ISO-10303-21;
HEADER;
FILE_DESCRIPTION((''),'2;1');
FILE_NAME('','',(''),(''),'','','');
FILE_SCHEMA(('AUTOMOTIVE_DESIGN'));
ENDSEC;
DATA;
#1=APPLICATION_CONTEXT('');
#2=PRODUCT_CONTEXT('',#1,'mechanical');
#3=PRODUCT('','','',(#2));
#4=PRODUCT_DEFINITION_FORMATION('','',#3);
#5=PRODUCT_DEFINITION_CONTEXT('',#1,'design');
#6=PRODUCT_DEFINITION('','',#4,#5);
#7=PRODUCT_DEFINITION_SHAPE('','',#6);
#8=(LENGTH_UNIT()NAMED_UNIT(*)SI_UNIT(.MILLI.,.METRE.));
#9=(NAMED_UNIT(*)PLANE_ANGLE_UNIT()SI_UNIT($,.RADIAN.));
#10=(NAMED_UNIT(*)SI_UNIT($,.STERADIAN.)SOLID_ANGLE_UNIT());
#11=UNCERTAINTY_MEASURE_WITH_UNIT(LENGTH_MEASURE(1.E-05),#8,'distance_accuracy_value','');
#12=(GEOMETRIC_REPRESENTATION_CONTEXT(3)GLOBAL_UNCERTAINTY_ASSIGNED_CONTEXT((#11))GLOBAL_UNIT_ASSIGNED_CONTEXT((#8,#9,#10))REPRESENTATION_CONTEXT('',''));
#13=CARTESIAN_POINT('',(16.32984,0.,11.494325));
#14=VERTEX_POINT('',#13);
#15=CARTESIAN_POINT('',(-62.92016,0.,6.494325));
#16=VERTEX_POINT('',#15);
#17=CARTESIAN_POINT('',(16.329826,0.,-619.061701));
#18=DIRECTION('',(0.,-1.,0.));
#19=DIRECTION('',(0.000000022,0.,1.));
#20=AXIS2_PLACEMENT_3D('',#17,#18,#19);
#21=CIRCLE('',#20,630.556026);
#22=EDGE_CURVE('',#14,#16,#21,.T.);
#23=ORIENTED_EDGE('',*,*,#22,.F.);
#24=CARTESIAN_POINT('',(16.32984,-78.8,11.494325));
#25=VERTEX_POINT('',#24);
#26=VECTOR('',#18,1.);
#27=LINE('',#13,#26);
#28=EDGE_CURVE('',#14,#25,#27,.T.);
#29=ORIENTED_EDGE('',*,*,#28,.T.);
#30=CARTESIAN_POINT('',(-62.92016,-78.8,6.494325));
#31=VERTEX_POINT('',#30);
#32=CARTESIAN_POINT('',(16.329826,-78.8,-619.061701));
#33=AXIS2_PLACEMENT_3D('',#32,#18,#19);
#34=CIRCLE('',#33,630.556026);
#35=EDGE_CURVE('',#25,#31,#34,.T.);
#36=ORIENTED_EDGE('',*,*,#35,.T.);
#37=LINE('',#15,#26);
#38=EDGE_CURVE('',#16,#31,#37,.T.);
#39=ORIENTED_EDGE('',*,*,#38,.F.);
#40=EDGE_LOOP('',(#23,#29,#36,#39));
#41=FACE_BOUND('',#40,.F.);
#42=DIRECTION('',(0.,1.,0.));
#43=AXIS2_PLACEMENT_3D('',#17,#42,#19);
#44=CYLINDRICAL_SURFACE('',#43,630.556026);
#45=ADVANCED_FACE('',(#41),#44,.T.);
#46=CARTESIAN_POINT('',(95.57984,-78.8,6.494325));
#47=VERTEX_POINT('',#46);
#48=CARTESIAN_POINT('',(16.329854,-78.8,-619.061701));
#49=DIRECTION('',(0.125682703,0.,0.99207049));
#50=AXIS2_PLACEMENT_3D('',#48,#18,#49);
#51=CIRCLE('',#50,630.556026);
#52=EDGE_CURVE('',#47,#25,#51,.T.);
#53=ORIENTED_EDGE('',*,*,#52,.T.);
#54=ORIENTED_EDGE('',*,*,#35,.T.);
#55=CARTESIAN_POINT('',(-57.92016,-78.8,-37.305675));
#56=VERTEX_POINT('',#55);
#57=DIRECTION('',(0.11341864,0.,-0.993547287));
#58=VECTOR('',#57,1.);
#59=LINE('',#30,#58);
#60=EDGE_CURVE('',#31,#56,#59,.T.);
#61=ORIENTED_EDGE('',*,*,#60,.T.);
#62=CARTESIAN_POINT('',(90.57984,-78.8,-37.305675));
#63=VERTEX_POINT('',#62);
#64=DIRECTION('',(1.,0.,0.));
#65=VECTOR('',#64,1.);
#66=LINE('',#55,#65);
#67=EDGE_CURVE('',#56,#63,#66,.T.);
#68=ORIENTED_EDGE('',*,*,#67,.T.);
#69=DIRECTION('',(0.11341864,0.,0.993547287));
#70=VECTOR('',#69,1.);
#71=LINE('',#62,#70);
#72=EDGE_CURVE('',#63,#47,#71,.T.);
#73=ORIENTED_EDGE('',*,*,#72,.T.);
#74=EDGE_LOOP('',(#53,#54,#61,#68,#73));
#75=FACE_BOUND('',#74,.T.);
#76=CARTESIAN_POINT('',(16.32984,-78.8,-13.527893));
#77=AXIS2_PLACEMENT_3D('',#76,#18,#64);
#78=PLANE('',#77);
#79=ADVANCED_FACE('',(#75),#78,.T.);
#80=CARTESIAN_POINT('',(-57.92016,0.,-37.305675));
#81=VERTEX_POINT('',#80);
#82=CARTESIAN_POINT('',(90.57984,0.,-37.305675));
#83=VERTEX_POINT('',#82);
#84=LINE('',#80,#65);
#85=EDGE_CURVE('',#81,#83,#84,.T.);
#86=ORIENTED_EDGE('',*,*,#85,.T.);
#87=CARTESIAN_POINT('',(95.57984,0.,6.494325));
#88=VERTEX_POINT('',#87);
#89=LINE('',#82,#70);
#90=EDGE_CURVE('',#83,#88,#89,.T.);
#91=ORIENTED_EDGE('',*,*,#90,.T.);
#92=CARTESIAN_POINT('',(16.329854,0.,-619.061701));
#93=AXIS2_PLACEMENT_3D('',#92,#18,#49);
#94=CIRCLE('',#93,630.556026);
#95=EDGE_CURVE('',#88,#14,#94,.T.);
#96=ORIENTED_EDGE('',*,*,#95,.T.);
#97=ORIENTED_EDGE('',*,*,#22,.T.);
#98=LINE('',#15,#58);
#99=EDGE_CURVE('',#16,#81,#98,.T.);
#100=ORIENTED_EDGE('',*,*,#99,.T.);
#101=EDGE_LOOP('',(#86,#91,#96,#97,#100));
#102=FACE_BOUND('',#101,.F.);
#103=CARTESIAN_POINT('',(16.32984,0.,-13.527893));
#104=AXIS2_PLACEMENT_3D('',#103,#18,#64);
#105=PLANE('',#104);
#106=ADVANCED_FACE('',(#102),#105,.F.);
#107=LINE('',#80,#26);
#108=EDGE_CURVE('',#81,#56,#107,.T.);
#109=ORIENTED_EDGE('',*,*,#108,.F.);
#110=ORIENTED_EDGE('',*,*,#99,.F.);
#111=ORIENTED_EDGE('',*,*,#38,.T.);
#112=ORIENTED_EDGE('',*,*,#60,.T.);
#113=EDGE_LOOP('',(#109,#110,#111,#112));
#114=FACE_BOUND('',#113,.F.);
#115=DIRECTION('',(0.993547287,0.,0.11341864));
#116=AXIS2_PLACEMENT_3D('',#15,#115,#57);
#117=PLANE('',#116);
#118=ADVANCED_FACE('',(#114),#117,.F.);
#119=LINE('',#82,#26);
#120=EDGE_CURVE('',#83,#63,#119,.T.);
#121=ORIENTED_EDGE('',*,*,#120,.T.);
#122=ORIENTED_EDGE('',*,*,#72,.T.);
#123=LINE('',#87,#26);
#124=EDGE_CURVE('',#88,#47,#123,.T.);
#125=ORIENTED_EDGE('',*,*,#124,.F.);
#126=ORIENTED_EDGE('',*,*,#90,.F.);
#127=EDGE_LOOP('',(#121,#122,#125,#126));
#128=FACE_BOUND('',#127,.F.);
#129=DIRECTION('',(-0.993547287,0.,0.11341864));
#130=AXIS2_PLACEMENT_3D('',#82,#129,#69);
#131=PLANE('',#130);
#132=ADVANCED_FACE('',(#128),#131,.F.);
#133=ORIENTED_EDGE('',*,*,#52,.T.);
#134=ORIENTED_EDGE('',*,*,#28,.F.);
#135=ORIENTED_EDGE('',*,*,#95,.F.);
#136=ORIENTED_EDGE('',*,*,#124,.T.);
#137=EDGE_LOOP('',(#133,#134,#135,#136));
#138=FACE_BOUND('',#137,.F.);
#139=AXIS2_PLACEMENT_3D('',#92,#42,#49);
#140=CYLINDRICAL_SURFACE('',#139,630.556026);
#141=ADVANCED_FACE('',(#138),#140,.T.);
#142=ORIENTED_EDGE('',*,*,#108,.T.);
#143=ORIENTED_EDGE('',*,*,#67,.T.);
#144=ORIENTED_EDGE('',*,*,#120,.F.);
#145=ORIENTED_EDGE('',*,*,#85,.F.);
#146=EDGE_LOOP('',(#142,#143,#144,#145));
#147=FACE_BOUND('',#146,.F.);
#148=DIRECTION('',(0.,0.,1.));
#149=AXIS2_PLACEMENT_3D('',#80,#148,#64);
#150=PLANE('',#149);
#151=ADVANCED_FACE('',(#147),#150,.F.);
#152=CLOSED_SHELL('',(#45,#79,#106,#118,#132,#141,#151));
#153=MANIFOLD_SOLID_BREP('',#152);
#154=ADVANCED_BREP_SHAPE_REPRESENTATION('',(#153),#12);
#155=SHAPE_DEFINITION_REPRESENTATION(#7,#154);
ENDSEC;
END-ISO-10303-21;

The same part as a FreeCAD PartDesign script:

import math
import FreeCAD as App
import Part
import Sketcher
Q = App.Units.Quantity

doc = App.newDocument("Part")
params = doc.addObject("Spreadsheet::Sheet", "Params")
for row, (alias, value) in enumerate([
    ("sketch1_width", "148.5 mm"),
    ("pad1_length", "78.8 mm"),
], start=1):
    params.set(f"A{row}", alias)
    params.set(f"B{row}", "=" + value)
    params.setAlias(f"B{row}", alias)

body = doc.addObject("PartDesign::Body", "Body")

# Sketch on XZ plane
sketch1 = body.newObject("Sketcher::SketchObject", "Sketch")
sketch1.AttachmentSupport = (doc.getObject("XZ_Plane"), [""])
sketch1.MapMode = "FlatFace"
sketch1.addGeometry([
    Part.LineSegment(App.Vector(-62.92016, 6.494325, 0), App.Vector(-57.92016, -37.305675, 0)),  # 0
    Part.LineSegment(App.Vector(-57.92016, -37.305675, 0), App.Vector(90.57984, -37.305675, 0)),  # 1
    Part.LineSegment(App.Vector(90.57984, -37.305675, 0), App.Vector(95.57984, 6.494325, 0)),  # 2
    Part.ArcOfCircle(Part.Circle(App.Vector(16.329854, -619.061701, 0), App.Vector(0, 0, 1), 630.556026), math.radians(82.779817), math.radians(90.000001)),  # 3
    Part.ArcOfCircle(Part.Circle(App.Vector(16.329826, -619.061701, 0), App.Vector(0, 0, 1), 630.556026), math.radians(89.999999), math.radians(97.220183)),  # 4
], False)
sketch1.addConstraint([
    Sketcher.Constraint("Coincident", 0, 2, 1, 1),
    Sketcher.Constraint("Coincident", 1, 2, 2, 1),
    Sketcher.Constraint("Coincident", 2, 2, 3, 1),
    Sketcher.Constraint("Coincident", 3, 2, 4, 1),
    Sketcher.Constraint("Coincident", 4, 2, 0, 1),
    Sketcher.Constraint("Horizontal", 1),
    Sketcher.Constraint("Equal", 3, 4),
    Sketcher.Constraint("Horizontal", 2, 2, 4, 2),
    Sketcher.Constraint("Equal", 0, 2),
    Sketcher.Constraint("DistanceX", 1, 1, 1, 2, Q("148.5 mm")),
    Sketcher.Constraint("DistanceX", 1, 2, 2, 2, Q("5 mm")),
    Sketcher.Constraint("DistanceY", 2, 2, 3, 2, Q("5 mm")),
    Sketcher.Constraint("DistanceY", 1, 2, 2, 2, Q("43.8 mm")),
    Sketcher.Constraint("DistanceX", 3, 2, 2, 2, Q("79.25 mm")),
    Sketcher.Constraint("Radius", 3, Q("630.556026 mm")),
    Sketcher.Constraint("DistanceY", 3, 3, -1, 1, Q("619.061701 mm")),
    Sketcher.Constraint("DistanceX", 0, 2, -1, 1, Q("57.92016 mm")),
])
sketch1.setExpression("Constraints[9]", "Params.sketch1_width")
pad1 = body.newObject("PartDesign::Pad", "Pad")
pad1.Profile = sketch1
pad1.setExpression("Length", "Params.pad1_length")

doc.recompute()
